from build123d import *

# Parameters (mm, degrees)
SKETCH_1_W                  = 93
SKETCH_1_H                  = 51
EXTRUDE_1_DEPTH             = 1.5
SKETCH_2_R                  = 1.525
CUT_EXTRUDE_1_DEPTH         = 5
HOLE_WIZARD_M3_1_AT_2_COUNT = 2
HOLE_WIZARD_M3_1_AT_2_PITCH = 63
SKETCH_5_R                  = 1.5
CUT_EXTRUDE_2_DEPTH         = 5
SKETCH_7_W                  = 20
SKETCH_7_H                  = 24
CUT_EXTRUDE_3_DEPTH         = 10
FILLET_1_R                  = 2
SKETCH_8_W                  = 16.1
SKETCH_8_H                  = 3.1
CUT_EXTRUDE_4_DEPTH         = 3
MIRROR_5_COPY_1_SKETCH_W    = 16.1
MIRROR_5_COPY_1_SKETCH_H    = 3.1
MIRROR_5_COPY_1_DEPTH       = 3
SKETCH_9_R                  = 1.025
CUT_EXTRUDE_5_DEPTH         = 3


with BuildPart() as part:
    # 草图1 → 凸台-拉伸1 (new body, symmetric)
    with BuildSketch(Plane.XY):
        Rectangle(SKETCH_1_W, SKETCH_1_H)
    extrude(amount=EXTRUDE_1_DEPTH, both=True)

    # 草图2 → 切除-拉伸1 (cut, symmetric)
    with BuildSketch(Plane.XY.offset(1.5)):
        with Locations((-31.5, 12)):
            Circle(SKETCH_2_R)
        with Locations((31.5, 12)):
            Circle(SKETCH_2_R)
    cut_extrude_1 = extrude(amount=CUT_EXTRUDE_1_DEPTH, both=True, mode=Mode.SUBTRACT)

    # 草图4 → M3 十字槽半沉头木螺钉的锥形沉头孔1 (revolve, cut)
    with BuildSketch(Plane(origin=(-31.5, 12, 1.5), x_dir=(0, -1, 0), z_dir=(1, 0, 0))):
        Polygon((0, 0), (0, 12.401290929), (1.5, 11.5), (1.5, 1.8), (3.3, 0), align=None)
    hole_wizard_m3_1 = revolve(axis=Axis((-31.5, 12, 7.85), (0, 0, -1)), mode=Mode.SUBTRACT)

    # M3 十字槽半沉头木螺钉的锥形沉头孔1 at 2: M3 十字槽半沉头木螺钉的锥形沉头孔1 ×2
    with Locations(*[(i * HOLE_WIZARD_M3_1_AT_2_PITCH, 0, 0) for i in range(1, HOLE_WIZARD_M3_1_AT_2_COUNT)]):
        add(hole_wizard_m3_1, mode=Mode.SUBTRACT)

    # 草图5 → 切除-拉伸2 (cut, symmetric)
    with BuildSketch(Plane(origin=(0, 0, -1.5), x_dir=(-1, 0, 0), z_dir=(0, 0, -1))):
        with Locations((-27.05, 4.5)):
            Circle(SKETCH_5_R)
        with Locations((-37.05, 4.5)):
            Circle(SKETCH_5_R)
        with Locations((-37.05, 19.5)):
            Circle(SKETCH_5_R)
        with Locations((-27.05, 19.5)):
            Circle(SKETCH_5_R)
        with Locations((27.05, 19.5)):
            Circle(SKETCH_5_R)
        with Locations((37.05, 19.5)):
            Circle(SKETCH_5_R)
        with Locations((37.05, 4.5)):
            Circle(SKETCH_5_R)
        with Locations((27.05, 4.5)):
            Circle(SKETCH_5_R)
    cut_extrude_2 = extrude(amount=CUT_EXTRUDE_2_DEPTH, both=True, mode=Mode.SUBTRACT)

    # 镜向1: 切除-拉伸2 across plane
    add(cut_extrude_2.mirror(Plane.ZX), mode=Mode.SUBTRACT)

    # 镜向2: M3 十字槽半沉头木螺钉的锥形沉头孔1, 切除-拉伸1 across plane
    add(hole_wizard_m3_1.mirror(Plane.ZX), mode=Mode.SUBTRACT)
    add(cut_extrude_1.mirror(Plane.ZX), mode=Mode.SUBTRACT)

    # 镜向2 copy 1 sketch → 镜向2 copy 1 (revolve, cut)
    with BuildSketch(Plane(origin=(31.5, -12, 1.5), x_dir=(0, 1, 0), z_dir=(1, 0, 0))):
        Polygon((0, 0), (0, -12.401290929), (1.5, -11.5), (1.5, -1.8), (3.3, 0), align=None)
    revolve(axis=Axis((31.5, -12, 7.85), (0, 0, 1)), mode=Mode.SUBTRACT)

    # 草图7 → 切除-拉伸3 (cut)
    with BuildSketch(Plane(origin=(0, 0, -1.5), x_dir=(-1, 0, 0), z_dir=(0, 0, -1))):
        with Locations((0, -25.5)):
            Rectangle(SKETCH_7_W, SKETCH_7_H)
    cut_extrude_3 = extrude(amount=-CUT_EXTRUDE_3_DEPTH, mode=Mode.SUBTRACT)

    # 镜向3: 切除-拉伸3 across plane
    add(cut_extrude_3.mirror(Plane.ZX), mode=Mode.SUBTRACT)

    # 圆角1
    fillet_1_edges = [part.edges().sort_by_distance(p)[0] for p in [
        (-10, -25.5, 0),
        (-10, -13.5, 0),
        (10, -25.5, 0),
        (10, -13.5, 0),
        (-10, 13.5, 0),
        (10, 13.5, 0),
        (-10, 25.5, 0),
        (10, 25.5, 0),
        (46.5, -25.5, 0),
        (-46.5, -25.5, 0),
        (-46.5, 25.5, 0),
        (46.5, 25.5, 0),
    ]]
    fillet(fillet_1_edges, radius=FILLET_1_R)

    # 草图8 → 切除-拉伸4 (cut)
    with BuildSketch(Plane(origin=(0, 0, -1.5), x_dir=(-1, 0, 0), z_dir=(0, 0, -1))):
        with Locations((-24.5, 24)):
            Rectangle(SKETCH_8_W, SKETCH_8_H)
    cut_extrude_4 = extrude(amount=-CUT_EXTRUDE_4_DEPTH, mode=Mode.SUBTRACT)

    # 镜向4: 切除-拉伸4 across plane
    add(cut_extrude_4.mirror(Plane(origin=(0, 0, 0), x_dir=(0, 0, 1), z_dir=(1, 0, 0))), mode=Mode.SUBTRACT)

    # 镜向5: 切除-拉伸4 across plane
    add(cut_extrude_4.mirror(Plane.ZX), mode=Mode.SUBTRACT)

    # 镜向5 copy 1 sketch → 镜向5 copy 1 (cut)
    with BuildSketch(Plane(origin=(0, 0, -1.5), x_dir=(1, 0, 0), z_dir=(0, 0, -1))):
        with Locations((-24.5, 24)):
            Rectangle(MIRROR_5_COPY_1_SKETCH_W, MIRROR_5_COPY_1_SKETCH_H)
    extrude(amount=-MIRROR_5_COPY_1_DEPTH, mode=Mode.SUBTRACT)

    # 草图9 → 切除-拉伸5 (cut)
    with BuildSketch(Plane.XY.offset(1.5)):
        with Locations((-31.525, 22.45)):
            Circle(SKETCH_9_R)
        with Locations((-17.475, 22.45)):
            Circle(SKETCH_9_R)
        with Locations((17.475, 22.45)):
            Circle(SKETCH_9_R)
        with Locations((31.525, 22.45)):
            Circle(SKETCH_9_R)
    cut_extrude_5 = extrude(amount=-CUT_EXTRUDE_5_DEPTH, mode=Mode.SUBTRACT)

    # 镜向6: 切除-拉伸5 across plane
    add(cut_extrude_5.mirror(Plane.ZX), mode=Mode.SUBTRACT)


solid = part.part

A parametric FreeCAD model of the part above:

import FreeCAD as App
import Part
import Sketcher
Q = App.Units.Quantity


def edges_at(feature, points):
    """Names of the edges that pass closest to the given points."""
    edges = feature.Shape.Edges
    near = lambda p: min(range(len(edges)), key=lambda i: edges[i].distToShape(Part.Vertex(*p))[0])
    return sorted({f"Edge{near(p) + 1}" for p in points})

doc = App.newDocument("Part")
params = doc.addObject("Spreadsheet::Sheet", "Params")
for row, (alias, value) in enumerate([
    ("sketch1_width", "93 mm"),
    ("sketch1_height", "51 mm"),
    ("pad1_length", "3 mm"),
    ("sketch2_diameter", "3.05 mm"),
    ("pocket1_length", "10 mm"),
    ("sketch3_width", "3.3 mm"),
    ("sketch3_height", "9.7 mm"),
    ("groove_angle", "360 deg"),
    ("linearpattern_pitch", "63 mm"),
    ("sketch4_diameter", "3 mm"),
    ("pocket2_length", "10 mm"),
    ("sketch5_width", "3.3 mm"),
    ("sketch5_height", "9.7 mm"),
    ("groove2_angle", "360 deg"),
    ("sketch6_width", "20 mm"),
    ("sketch6_height", "24 mm"),
    ("pocket3_length", "10 mm"),
    ("fillet_radius", "2 mm"),
    ("sketch7_width", "16.1 mm"),
    ("sketch7_height", "3.1 mm"),
    ("pocket4_length", "3 mm"),
    ("sketch8_width", "16.1 mm"),
    ("sketch8_height", "3.1 mm"),
    ("pocket5_length", "3 mm"),
    ("sketch9_diameter", "2.05 mm"),
    ("pocket6_length", "3 mm"),
], start=1):
    params.set(f"A{row}", alias)
    params.set(f"B{row}", "=" + value)
    params.setAlias(f"B{row}", alias)

body = doc.addObject("PartDesign::Body", "Body")

# Sketch on XY plane
sketch1 = body.newObject("Sketcher::SketchObject", "Sketch")
sketch1.AttachmentSupport = (doc.getObject("XY_Plane"), [""])
sketch1.MapMode = "FlatFace"
sketch1.addGeometry(Part.LineSegment(App.Vector(-46, 26, 0), App.Vector(-46, -26, 0)), False)
sketch1.addGeometry(Part.LineSegment(App.Vector(-46, -26, 0), App.Vector(46, -26, 0)), False)
sketch1.addGeometry(Part.LineSegment(App.Vector(46, -26, 0), App.Vector(46, 26, 0)), False)
sketch1.addGeometry(Part.LineSegment(App.Vector(46, 26, 0), App.Vector(-46, 26, 0)), False)
sketch1.addConstraint(Sketcher.Constraint("Coincident", 0, 2, 1, 1))
sketch1.addConstraint(Sketcher.Constraint("Coincident", 1, 2, 2, 1))
sketch1.addConstraint(Sketcher.Constraint("Coincident", 2, 2, 3, 1))
sketch1.addConstraint(Sketcher.Constraint("Coincident", 3, 2, 0, 1))
sketch1.addConstraint(Sketcher.Constraint("Vertical", 0))
sketch1.addConstraint(Sketcher.Constraint("Horizontal", 1))
sketch1.addConstraint(Sketcher.Constraint("Vertical", 2))
sketch1.addConstraint(Sketcher.Constraint("Horizontal", 3))
sketch1.addConstraint(Sketcher.Constraint("Symmetric", 0, 2, 2, 2, -1, 1))
sketch1.addConstraint(Sketcher.Constraint("DistanceX", 1, 1, 1, 2, Q("93 mm")))
sketch1.addConstraint(Sketcher.Constraint("DistanceY", 0, 2, 0, 1, Q("51 mm")))
sketch1.setExpression("Constraints[9]", "Params.sketch1_width")
sketch1.setExpression("Constraints[10]", "Params.sketch1_height")
pad1 = body.newObject("PartDesign::Pad", "Pad")
pad1.Profile = sketch1
pad1.setExpression("Length", "Params.pad1_length")
pad1.Midplane = True

# Sketch on XY plane
sketch2 = body.newObject("Sketcher::SketchObject", "Sketch001")
sketch2.AttachmentSupport = (doc.getObject("XY_Plane"), [""])
sketch2.MapMode = "FlatFace"
sketch2.AttachmentOffset = App.Placement(App.Vector(0, 0, 1.5), App.Rotation())
sketch2.addGeometry(Part.Circle(App.Vector(-31.5, 12, 0), App.Vector(0, 0, 1), 1.5), False)
sketch2.addGeometry(Part.Circle(App.Vector(31.5, 12, 0), App.Vector(0, 0, 1), 1.5), False)
sketch2.addConstraint(Sketcher.Constraint("Equal", 0, 1))
sketch2.addConstraint(Sketcher.Constraint("Symmetric", 0, 3, 1, 3, -2))
sketch2.addConstraint(Sketcher.Constraint("Diameter", 0, Q("3.05 mm")))
sketch2.addConstraint(Sketcher.Constraint("DistanceY", -1, 1, 0, 3, Q("12 mm")))
sketch2.addConstraint(Sketcher.Constraint("DistanceX", 0, 3, 1, 3, Q("63 mm")))
sketch2.setExpression("Constraints[2]", "Params.sketch2_diameter")
pocket1 = body.newObject("PartDesign::Pocket", "Pocket")
pocket1.Profile = sketch2
pocket1.setExpression("Length", "Params.pocket1_length")
pocket1.Midplane = True

# Sketch on YZ plane
sketch3 = body.newObject("Sketcher::SketchObject", "Sketch002")
sketch3.AttachmentSupport = (doc.getObject("YZ_Plane"), [""])
sketch3.MapMode = "FlatFace"
sketch3.AttachmentOffset = App.Placement(App.Vector(0, 0, -31.5), App.Rotation())
sketch3.addGeometry(Part.LineSegment(App.Vector(12, -10.9, 0), App.Vector(12, 1.5, 0)), False)
sketch3.addGeometry(Part.LineSegment(App.Vector(12, 1.5, 0), App.Vector(8.7, 1.5, 0)), False)
sketch3.addGeometry(Part.LineSegment(App.Vector(8.7, 1.5, 0), App.Vector(10.5, -0.3, 0)), False)
sketch3.addGeometry(Part.LineSegment(App.Vector(10.5, -0.3, 0), App.Vector(10.5, -10, 0)), False)
sketch3.addGeometry(Part.LineSegment(App.Vector(10.5, -10, 0), App.Vector(12, -10.9, 0)), False)
sketch3.addGeometry(Part.LineSegment(App.Vector(12, 1.5, 0), App.Vector(12, -10.9, 0)), True)  # axis
sketch3.addConstraint(Sketcher.Constraint("Coincident", 0, 2, 1, 1))
sketch3.addConstraint(Sketcher.Constraint("Coincident", 1, 2, 2, 1))
sketch3.addConstraint(Sketcher.Constraint("Coincident", 2, 2, 3, 1))
sketch3.addConstraint(Sketcher.Constraint("Coincident", 3, 2, 4, 1))
sketch3.addConstraint(Sketcher.Constraint("Coincident", 4, 2, 0, 1))
sketch3.addConstraint(Sketcher.Constraint("Vertical", 0))
sketch3.addConstraint(Sketcher.Constraint("Horizontal", 1))
sketch3.addConstraint(Sketcher.Constraint("Vertical", 3))
sketch3.addConstraint(Sketcher.Constraint("Vertical", 5))
sketch3.addConstraint(Sketcher.Constraint("Coincident", 5, 1, 0, 2))
sketch3.addConstraint(Sketcher.Constraint("Equal", 0, 5))
sketch3.addConstraint(Sketcher.Constraint("Angle", 2, Q("-45 deg")))
sketch3.addConstraint(Sketcher.Constraint("Angle", 4, Q("-31 deg")))
sketch3.addConstraint(Sketcher.Constraint("DistanceX", 1, 2, 1, 1, Q("3.3 mm")))
sketch3.addConstraint(Sketcher.Constraint("DistanceY", 3, 2, 3, 1, Q("9.7 mm")))
sketch3.addConstraint(Sketcher.Constraint("DistanceX", -1, 1, 0, 2, Q("12 mm")))
sketch3.addConstraint(Sketcher.Constraint("DistanceY", 3, 2, -1, 1, Q("10 mm")))
sketch3.addConstraint(Sketcher.Constraint("DistanceY", -1, 1, 0, 2, Q("1.5 mm")))
sketch3.setExpression("Constraints[13]", "Params.sketch3_width")
sketch3.setExpression("Constraints[14]", "Params.sketch3_height")
groove = body.newObject("PartDesign::Groove", "Groove")
groove.Profile = sketch3
groove.ReferenceAxis = (sketch3, ["Axis0"])
groove.setExpression("Angle", "Params.groove_angle")
doc.recompute()

linearpattern = body.newObject("PartDesign::LinearPattern", "LinearPattern")
linearpattern.Originals = [groove]
linearpattern.Direction = (doc.getObject("X_Axis"), [""])
linearpattern.Mode = "offset"
linearpattern.setExpression("Offset", "Params.linearpattern_pitch")
linearpattern.Occurrences = 2
body.Tip = linearpattern

# Sketch on XY plane
sketch4 = body.newObject("Sketcher::SketchObject", "Sketch003")
sketch4.AttachmentSupport = (doc.getObject("XY_Plane"), [""])
sketch4.MapMode = "FlatFace"
sketch4.AttachmentOffset = App.Placement(App.Vector(0, 0, -1.5), App.Rotation())
sketch4.addGeometry(Part.Circle(App.Vector(27.1, 4.5, 0), App.Vector(0, 0, 1), 1.5), False)
sketch4.addGeometry(Part.Circle(App.Vector(37, 4.5, 0), App.Vector(0, 0, 1), 1.5), False)
sketch4.addGeometry(Part.Circle(App.Vector(37, 19.5, 0), App.Vector(0, 0, 1), 1.5), False)
sketch4.addGeometry(Part.Circle(App.Vector(27.1, 19.5, 0), App.Vector(0, 0, 1), 1.5), False)
sketch4.addGeometry(Part.Circle(App.Vector(-27.1, 19.5, 0), App.Vector(0, 0, 1), 1.5), False)
sketch4.addGeometry(Part.Circle(App.Vector(-37, 19.5, 0), App.Vector(0, 0, 1), 1.5), False)
sketch4.addGeometry(Part.Circle(App.Vector(-37, 4.5, 0), App.Vector(0, 0, 1), 1.5), False)
sketch4.addGeometry(Part.Circle(App.Vector(-27.1, 4.5, 0), App.Vector(0, 0, 1), 1.5), False)
sketch4.addConstraint(Sketcher.Constraint("Equal", 0, 1))
sketch4.addConstraint(Sketcher.Constraint("Equal", 1, 2))
sketch4.addConstraint(Sketcher.Constraint("Equal", 2, 3))
sketch4.addConstraint(Sketcher.Constraint("Equal", 3, 4))
sketch4.addConstraint(Sketcher.Constraint("Equal", 4, 5))
sketch4.addConstraint(Sketcher.Constraint("Equal", 5, 6))
sketch4.addConstraint(Sketcher.Constraint("Equal", 6, 7))
sketch4.addConstraint(Sketcher.Constraint("Symmetric", 3, 3, 4, 3, -2))
sketch4.addConstraint(Sketcher.Constraint("Symmetric", 2, 3, 5, 3, -2))
sketch4.addConstraint(Sketcher.Constraint("Symmetric", 1, 3, 6, 3, -2))
sketch4.addConstraint(Sketcher.Constraint("Symmetric", 0, 3, 7, 3, -2))
sketch4.addConstraint(Sketcher.Constraint("Horizontal", 0, 3, 1, 3))
sketch4.addConstraint(Sketcher.Constraint("Horizontal", 2, 3, 3, 3))
sketch4.addConstraint(Sketcher.Constraint("Vertical", 1, 3, 2, 3))
sketch4.addConstraint(Sketcher.Constraint("Vertical", 0, 3, 3, 3))
sketch4.addConstraint(Sketcher.Constraint("Diameter", 0, Q("3 mm")))
sketch4.addConstraint(Sketcher.Constraint("DistanceX", 0, 3, 1, 3, Q("10 mm")))
sketch4.addConstraint(Sketcher.Constraint("DistanceY", 1, 3, 2, 3, Q("15 mm")))
sketch4.addConstraint(Sketcher.Constraint("DistanceY", -1, 1, 0, 3, Q("4.5 mm")))
sketch4.addConstraint(Sketcher.Constraint("DistanceX", 4, 3, 3, 3, Q("54.1 mm")))
sketch4.setExpression("Constraints[15]", "Params.sketch4_diameter")
pocket2 = body.newObject("PartDesign::Pocket", "Pocket001")
pocket2.Profile = sketch4
pocket2.setExpression("Length", "Params.pocket2_length")
pocket2.Midplane = True
doc.recompute()

mirrored = body.newObject("PartDesign::Mirrored", "Mirrored")
mirrored.Originals = [pocket2]
mirrored.MirrorPlane = (doc.getObject("XZ_Plane"), [""])
body.Tip = mirrored
doc.recompute()

mirrored2 = body.newObject("PartDesign::Mirrored", "Mirrored001")
mirrored2.Originals = [groove, pocket1]
mirrored2.MirrorPlane = (doc.getObject("XZ_Plane"), [""])
body.Tip = mirrored2

# Sketch on YZ plane
sketch5 = body.newObject("Sketcher::SketchObject", "Sketch004")
sketch5.AttachmentSupport = (doc.getObject("YZ_Plane"), [""])
sketch5.MapMode = "FlatFace"
sketch5.AttachmentOffset = App.Placement(App.Vector(0, 0, 31.5), App.Rotation())
sketch5.addGeometry(Part.LineSegment(App.Vector(-12, 1.5, 0), App.Vector(-12, -10.9, 0)), False)
sketch5.addGeometry(Part.LineSegment(App.Vector(-12, -10.9, 0), App.Vector(-10.5, -10, 0)), False)
sketch5.addGeometry(Part.LineSegment(App.Vector(-10.5, -10, 0), App.Vector(-10.5, -0.3, 0)), False)
sketch5.addGeometry(Part.LineSegment(App.Vector(-10.5, -0.3, 0), App.Vector(-8.7, 1.5, 0)), False)
sketch5.addGeometry(Part.LineSegment(App.Vector(-8.7, 1.5, 0), App.Vector(-12, 1.5, 0)), False)
sketch5.addGeometry(Part.LineSegment(App.Vector(-12, -10.9, 0), App.Vector(-12, 1.5, 0)), True)  # axis
sketch5.addConstraint(Sketcher.Constraint("Coincident", 0, 2, 1, 1))
sketch5.addConstraint(Sketcher.Constraint("Coincident", 1, 2, 2, 1))
sketch5.addConstraint(Sketcher.Constraint("Coincident", 2, 2, 3, 1))
sketch5.addConstraint(Sketcher.Constraint("Coincident", 3, 2, 4, 1))
sketch5.addConstraint(Sketcher.Constraint("Coincident", 4, 2, 0, 1))
sketch5.addConstraint(Sketcher.Constraint("Vertical", 0))
sketch5.addConstraint(Sketcher.Constraint("Vertical", 2))
sketch5.addConstraint(Sketcher.Constraint("Horizontal", 4))
sketch5.addConstraint(Sketcher.Constraint("Vertical", 5))
sketch5.addConstraint(Sketcher.Constraint("Coincident", 5, 1, 0, 2))
sketch5.addConstraint(Sketcher.Constraint("Horizontal", 3, 2, 5, 2))
sketch5.addConstraint(Sketcher.Constraint("Angle", 1, Q("31 deg")))
sketch5.addConstraint(Sketcher.Constraint("Angle", 3, Q("45 deg")))
sketch5.addConstraint(Sketcher.Constraint("DistanceX", 4, 2, 4, 1, Q("3.3 mm")))
sketch5.addConstraint(Sketcher.Constraint("DistanceY", 2, 1, 2, 2, Q("9.7 mm")))
sketch5.addConstraint(Sketcher.Constraint("DistanceX", 0, 2, -1, 1, Q("12 mm")))
sketch5.addConstraint(Sketcher.Constraint("DistanceY", 1, 2, -1, 1, Q("10 mm")))
sketch5.addConstraint(Sketcher.Constraint("DistanceX", 1, 2, -1, 1, Q("10.5 mm")))
sketch5.setExpression("Constraints[13]", "Params.sketch5_width")
sketch5.setExpression("Constraints[14]", "Params.sketch5_height")
groove2 = body.newObject("PartDesign::Groove", "Groove001")
groove2.Profile = sketch5
groove2.ReferenceAxis = (sketch5, ["Axis0"])
groove2.setExpression("Angle", "Params.groove2_angle")

# Sketch on XY plane
sketch6 = body.newObject("Sketcher::SketchObject", "Sketch005")
sketch6.AttachmentSupport = (doc.getObject("XY_Plane"), [""])
sketch6.MapMode = "FlatFace"
sketch6.AttachmentOffset = App.Placement(App.Vector(0, 0, -1.5), App.Rotation())
sketch6.addGeometry(Part.LineSegment(App.Vector(10, -14, 0), App.Vector(10, -38, 0)), False)
sketch6.addGeometry(Part.LineSegment(App.Vector(10, -38, 0), App.Vector(-10, -38, 0)), False)
sketch6.addGeometry(Part.LineSegment(App.Vector(-10, -38, 0), App.Vector(-10, -14, 0)), False)
sketch6.addGeometry(Part.LineSegment(App.Vector(-10, -14, 0), App.Vector(10, -14, 0)), False)
sketch6.addConstraint(Sketcher.Constraint("Coincident", 0, 2, 1, 1))
sketch6.addConstraint(Sketcher.Constraint("Coincident", 1, 2, 2, 1))
sketch6.addConstraint(Sketcher.Constraint("Coincident", 2, 2, 3, 1))
sketch6.addConstraint(Sketcher.Constraint("Coincident", 3, 2, 0, 1))
sketch6.addConstraint(Sketcher.Constraint("Vertical", 0))
sketch6.addConstraint(Sketcher.Constraint("Horizontal", 1))
sketch6.addConstraint(Sketcher.Constraint("Vertical", 2))
sketch6.addConstraint(Sketcher.Constraint("Horizontal", 3))
sketch6.addConstraint(Sketcher.Constraint("DistanceX", 1, 2, 1, 1, Q("20 mm")))
sketch6.addConstraint(Sketcher.Constraint("DistanceY", 0, 2, 0, 1, Q("24 mm")))
sketch6.addConstraint(Sketcher.Constraint("DistanceX", -1, 1, 0, 2, Q("10 mm")))
sketch6.addConstraint(Sketcher.Constraint("DistanceY", 0, 2, -1, 1, Q("37.5 mm")))
sketch6.setExpression("Constraints[8]", "Params.sketch6_width")
sketch6.setExpression("Constraints[9]", "Params.sketch6_height")
pocket3 = body.newObject("PartDesign::Pocket", "Pocket002")
pocket3.Profile = sketch6
pocket3.setExpression("Length", "Params.pocket3_length")
pocket3.Reversed = True
doc.recompute()

mirrored3 = body.newObject("PartDesign::Mirrored", "Mirrored002")
mirrored3.Originals = [pocket3]
mirrored3.MirrorPlane = (doc.getObject("XZ_Plane"), [""])
body.Tip = mirrored3
doc.recompute()

fillet = body.newObject("PartDesign::Fillet", "Fillet")
fillet.Base = (mirrored3, edges_at(mirrored3, [
    (-10, -25.5, 0),
    (-10, -13.5, 0),
    (10, -25.5, 0),
    (10, -13.5, 0),
    (-10, 13.5, 0),
    (10, 13.5, 0),
    (-10, 25.5, 0),
    (10, 25.5, 0),
    (46.5, -25.5, 0),
    (-46.5, -25.5, 0),
    (-46.5, 25.5, 0),
    (46.5, 25.5, 0),
]))
fillet.setExpression("Radius", "Params.fillet_radius")

# Sketch on XY plane
sketch7 = body.newObject("Sketcher::SketchObject", "Sketch006")
sketch7.AttachmentSupport = (doc.getObject("XY_Plane"), [""])
sketch7.MapMode = "FlatFace"
sketch7.AttachmentOffset = App.Placement(App.Vector(0, 0, -1.5), App.Rotation())
sketch7.addGeometry(Part.LineSegment(App.Vector(32.5, 25.6, 0), App.Vector(32.5, 22.4, 0)), False)
sketch7.addGeometry(Part.LineSegment(App.Vector(32.5, 22.4, 0), App.Vector(16.4, 22.4, 0)), False)
sketch7.addGeometry(Part.LineSegment(App.Vector(16.4, 22.4, 0), App.Vector(16.4, 25.6, 0)), False)
sketch7.addGeometry(Part.LineSegment(App.Vector(16.4, 25.6, 0), App.Vector(32.5, 25.6, 0)), False)
sketch7.addConstraint(Sketcher.Constraint("Coincident", 0, 2, 1, 1))
sketch7.addConstraint(Sketcher.Constraint("Coincident", 1, 2, 2, 1))
sketch7.addConstraint(Sketcher.Constraint("Coincident", 2, 2, 3, 1))
sketch7.addConstraint(Sketcher.Constraint("Coincident", 3, 2, 0, 1))
sketch7.addConstraint(Sketcher.Constraint("Vertical", 0))
sketch7.addConstraint(Sketcher.Constraint("Horizontal", 1))
sketch7.addConstraint(Sketcher.Constraint("Vertical", 2))
sketch7.addConstraint(Sketcher.Constraint("Horizontal", 3))
sketch7.addConstraint(Sketcher.Constraint("DistanceX", 1, 2, 1, 1, Q("16.1 mm")))
sketch7.addConstraint(Sketcher.Constraint("DistanceY", 0, 2, 0, 1, Q("3.1 mm")))
sketch7.addConstraint(Sketcher.Constraint("DistanceX", -1, 1, 0, 2, Q("32.55 mm")))
sketch7.addConstraint(Sketcher.Constraint("DistanceY", -1, 1, 0, 2, Q("22.45 mm")))
sketch7.setExpression("Constraints[8]", "Params.sketch7_width")
sketch7.setExpression("Constraints[9]", "Params.sketch7_height")
pocket4 = body.newObject("PartDesign::Pocket", "Pocket003")
pocket4.Profile = sketch7
pocket4.setExpression("Length", "Params.pocket4_length")
pocket4.Reversed = True
doc.recompute()

mirrored4 = body.newObject("PartDesign::Mirrored", "Mirrored003")
mirrored4.Originals = [pocket4]
mirrored4.MirrorPlane = (doc.getObject("YZ_Plane"), [""])
body.Tip = mirrored4
doc.recompute()

mirrored5 = body.newObject("PartDesign::Mirrored", "Mirrored004")
mirrored5.Originals = [pocket4]
mirrored5.MirrorPlane = (doc.getObject("XZ_Plane"), [""])
body.Tip = mirrored5

# Sketch on XY plane
sketch8 = body.newObject("Sketcher::SketchObject", "Sketch007")
sketch8.AttachmentSupport = (doc.getObject("XY_Plane"), [""])
sketch8.MapMode = "FlatFace"
sketch8.AttachmentOffset = App.Placement(App.Vector(0, 0, -1.5), App.Rotation())
sketch8.addGeometry(Part.LineSegment(App.Vector(-32.5, -25.6, 0), App.Vector(-32.5, -22.4, 0)), False)
sketch8.addGeometry(Part.LineSegment(App.Vector(-32.5, -22.4, 0), App.Vector(-16.4, -22.4, 0)), False)
sketch8.addGeometry(Part.LineSegment(App.Vector(-16.4, -22.4, 0), App.Vector(-16.4, -25.6, 0)), False)
sketch8.addGeometry(Part.LineSegment(App.Vector(-16.4, -25.6, 0), App.Vector(-32.5, -25.6, 0)), False)
sketch8.addConstraint(Sketcher.Constraint("Coincident", 0, 2, 1, 1))
sketch8.addConstraint(Sketcher.Constraint("Coincident", 1, 2, 2, 1))
sketch8.addConstraint(Sketcher.Constraint("Coincident", 2, 2, 3, 1))
sketch8.addConstraint(Sketcher.Constraint("Coincident", 3, 2, 0, 1))
sketch8.addConstraint(Sketcher.Constraint("Vertical", 0))
sketch8.addConstraint(Sketcher.Constraint("Horizontal", 1))
sketch8.addConstraint(Sketcher.Constraint("Vertical", 2))
sketch8.addConstraint(Sketcher.Constraint("Horizontal", 3))
sketch8.addConstraint(Sketcher.Constraint("DistanceX", 1, 1, 1, 2, Q("16.1 mm")))
sketch8.addConstraint(Sketcher.Constraint("DistanceY", 0, 1, 0, 2, Q("3.1 mm")))
sketch8.addConstraint(Sketcher.Constraint("DistanceX", 0, 2, -1, 1, Q("32.55 mm")))
sketch8.addConstraint(Sketcher.Constraint("DistanceY", 0, 2, -1, 1, Q("22.45 mm")))
sketch8.setExpression("Constraints[8]", "Params.sketch8_width")
sketch8.setExpression("Constraints[9]", "Params.sketch8_height")
pocket5 = body.newObject("PartDesign::Pocket", "Pocket004")
pocket5.Profile = sketch8
pocket5.setExpression("Length", "Params.pocket5_length")
pocket5.Reversed = True

# Sketch on XY plane
sketch9 = body.newObject("Sketcher::SketchObject", "Sketch008")
sketch9.AttachmentSupport = (doc.getObject("XY_Plane"), [""])
sketch9.MapMode = "FlatFace"
sketch9.AttachmentOffset = App.Placement(App.Vector(0, 0, 1.5), App.Rotation())
sketch9.addGeometry(Part.Circle(App.Vector(-31.5, 22.4, 0), App.Vector(0, 0, 1), 1), False)
sketch9.addGeometry(Part.Circle(App.Vector(-17.5, 22.4, 0), App.Vector(0, 0, 1), 1), False)
sketch9.addGeometry(Part.Circle(App.Vector(17.5, 22.4, 0), App.Vector(0, 0, 1), 1), False)
sketch9.addGeometry(Part.Circle(App.Vector(31.5, 22.4, 0), App.Vector(0, 0, 1), 1), False)
sketch9.addConstraint(Sketcher.Constraint("Equal", 0, 1))
sketch9.addConstraint(Sketcher.Constraint("Equal", 1, 2))
sketch9.addConstraint(Sketcher.Constraint("Equal", 2, 3))
sketch9.addConstraint(Sketcher.Constraint("Symmetric", 1, 3, 2, 3, -2))
sketch9.addConstraint(Sketcher.Constraint("Symmetric", 0, 3, 3, 3, -2))
sketch9.addConstraint(Sketcher.Constraint("Horizontal", 0, 3, 1, 3))
sketch9.addConstraint(Sketcher.Constraint("Diameter", 0, Q("2.05 mm")))
sketch9.addConstraint(Sketcher.Constraint("DistanceX", 0, 3, 2, 3, Q("49 mm")))
sketch9.addConstraint(Sketcher.Constraint("DistanceY", -1, 1, 0, 3, Q("22.45 mm")))
sketch9.addConstraint(Sketcher.Constraint("DistanceX", 0, 3, 1, 3, Q("14.05 mm")))
sketch9.setExpression("Constraints[6]", "Params.sketch9_diameter")
pocket6 = body.newObject("PartDesign::Pocket", "Pocket005")
pocket6.Profile = sketch9
pocket6.setExpression("Length", "Params.pocket6_length")
doc.recompute()

mirrored6 = body.newObject("PartDesign::Mirrored", "Mirrored005")
mirrored6.Originals = [pocket6]
mirrored6.MirrorPlane = (doc.getObject("XZ_Plane"), [""])
body.Tip = mirrored6

doc.recompute()
